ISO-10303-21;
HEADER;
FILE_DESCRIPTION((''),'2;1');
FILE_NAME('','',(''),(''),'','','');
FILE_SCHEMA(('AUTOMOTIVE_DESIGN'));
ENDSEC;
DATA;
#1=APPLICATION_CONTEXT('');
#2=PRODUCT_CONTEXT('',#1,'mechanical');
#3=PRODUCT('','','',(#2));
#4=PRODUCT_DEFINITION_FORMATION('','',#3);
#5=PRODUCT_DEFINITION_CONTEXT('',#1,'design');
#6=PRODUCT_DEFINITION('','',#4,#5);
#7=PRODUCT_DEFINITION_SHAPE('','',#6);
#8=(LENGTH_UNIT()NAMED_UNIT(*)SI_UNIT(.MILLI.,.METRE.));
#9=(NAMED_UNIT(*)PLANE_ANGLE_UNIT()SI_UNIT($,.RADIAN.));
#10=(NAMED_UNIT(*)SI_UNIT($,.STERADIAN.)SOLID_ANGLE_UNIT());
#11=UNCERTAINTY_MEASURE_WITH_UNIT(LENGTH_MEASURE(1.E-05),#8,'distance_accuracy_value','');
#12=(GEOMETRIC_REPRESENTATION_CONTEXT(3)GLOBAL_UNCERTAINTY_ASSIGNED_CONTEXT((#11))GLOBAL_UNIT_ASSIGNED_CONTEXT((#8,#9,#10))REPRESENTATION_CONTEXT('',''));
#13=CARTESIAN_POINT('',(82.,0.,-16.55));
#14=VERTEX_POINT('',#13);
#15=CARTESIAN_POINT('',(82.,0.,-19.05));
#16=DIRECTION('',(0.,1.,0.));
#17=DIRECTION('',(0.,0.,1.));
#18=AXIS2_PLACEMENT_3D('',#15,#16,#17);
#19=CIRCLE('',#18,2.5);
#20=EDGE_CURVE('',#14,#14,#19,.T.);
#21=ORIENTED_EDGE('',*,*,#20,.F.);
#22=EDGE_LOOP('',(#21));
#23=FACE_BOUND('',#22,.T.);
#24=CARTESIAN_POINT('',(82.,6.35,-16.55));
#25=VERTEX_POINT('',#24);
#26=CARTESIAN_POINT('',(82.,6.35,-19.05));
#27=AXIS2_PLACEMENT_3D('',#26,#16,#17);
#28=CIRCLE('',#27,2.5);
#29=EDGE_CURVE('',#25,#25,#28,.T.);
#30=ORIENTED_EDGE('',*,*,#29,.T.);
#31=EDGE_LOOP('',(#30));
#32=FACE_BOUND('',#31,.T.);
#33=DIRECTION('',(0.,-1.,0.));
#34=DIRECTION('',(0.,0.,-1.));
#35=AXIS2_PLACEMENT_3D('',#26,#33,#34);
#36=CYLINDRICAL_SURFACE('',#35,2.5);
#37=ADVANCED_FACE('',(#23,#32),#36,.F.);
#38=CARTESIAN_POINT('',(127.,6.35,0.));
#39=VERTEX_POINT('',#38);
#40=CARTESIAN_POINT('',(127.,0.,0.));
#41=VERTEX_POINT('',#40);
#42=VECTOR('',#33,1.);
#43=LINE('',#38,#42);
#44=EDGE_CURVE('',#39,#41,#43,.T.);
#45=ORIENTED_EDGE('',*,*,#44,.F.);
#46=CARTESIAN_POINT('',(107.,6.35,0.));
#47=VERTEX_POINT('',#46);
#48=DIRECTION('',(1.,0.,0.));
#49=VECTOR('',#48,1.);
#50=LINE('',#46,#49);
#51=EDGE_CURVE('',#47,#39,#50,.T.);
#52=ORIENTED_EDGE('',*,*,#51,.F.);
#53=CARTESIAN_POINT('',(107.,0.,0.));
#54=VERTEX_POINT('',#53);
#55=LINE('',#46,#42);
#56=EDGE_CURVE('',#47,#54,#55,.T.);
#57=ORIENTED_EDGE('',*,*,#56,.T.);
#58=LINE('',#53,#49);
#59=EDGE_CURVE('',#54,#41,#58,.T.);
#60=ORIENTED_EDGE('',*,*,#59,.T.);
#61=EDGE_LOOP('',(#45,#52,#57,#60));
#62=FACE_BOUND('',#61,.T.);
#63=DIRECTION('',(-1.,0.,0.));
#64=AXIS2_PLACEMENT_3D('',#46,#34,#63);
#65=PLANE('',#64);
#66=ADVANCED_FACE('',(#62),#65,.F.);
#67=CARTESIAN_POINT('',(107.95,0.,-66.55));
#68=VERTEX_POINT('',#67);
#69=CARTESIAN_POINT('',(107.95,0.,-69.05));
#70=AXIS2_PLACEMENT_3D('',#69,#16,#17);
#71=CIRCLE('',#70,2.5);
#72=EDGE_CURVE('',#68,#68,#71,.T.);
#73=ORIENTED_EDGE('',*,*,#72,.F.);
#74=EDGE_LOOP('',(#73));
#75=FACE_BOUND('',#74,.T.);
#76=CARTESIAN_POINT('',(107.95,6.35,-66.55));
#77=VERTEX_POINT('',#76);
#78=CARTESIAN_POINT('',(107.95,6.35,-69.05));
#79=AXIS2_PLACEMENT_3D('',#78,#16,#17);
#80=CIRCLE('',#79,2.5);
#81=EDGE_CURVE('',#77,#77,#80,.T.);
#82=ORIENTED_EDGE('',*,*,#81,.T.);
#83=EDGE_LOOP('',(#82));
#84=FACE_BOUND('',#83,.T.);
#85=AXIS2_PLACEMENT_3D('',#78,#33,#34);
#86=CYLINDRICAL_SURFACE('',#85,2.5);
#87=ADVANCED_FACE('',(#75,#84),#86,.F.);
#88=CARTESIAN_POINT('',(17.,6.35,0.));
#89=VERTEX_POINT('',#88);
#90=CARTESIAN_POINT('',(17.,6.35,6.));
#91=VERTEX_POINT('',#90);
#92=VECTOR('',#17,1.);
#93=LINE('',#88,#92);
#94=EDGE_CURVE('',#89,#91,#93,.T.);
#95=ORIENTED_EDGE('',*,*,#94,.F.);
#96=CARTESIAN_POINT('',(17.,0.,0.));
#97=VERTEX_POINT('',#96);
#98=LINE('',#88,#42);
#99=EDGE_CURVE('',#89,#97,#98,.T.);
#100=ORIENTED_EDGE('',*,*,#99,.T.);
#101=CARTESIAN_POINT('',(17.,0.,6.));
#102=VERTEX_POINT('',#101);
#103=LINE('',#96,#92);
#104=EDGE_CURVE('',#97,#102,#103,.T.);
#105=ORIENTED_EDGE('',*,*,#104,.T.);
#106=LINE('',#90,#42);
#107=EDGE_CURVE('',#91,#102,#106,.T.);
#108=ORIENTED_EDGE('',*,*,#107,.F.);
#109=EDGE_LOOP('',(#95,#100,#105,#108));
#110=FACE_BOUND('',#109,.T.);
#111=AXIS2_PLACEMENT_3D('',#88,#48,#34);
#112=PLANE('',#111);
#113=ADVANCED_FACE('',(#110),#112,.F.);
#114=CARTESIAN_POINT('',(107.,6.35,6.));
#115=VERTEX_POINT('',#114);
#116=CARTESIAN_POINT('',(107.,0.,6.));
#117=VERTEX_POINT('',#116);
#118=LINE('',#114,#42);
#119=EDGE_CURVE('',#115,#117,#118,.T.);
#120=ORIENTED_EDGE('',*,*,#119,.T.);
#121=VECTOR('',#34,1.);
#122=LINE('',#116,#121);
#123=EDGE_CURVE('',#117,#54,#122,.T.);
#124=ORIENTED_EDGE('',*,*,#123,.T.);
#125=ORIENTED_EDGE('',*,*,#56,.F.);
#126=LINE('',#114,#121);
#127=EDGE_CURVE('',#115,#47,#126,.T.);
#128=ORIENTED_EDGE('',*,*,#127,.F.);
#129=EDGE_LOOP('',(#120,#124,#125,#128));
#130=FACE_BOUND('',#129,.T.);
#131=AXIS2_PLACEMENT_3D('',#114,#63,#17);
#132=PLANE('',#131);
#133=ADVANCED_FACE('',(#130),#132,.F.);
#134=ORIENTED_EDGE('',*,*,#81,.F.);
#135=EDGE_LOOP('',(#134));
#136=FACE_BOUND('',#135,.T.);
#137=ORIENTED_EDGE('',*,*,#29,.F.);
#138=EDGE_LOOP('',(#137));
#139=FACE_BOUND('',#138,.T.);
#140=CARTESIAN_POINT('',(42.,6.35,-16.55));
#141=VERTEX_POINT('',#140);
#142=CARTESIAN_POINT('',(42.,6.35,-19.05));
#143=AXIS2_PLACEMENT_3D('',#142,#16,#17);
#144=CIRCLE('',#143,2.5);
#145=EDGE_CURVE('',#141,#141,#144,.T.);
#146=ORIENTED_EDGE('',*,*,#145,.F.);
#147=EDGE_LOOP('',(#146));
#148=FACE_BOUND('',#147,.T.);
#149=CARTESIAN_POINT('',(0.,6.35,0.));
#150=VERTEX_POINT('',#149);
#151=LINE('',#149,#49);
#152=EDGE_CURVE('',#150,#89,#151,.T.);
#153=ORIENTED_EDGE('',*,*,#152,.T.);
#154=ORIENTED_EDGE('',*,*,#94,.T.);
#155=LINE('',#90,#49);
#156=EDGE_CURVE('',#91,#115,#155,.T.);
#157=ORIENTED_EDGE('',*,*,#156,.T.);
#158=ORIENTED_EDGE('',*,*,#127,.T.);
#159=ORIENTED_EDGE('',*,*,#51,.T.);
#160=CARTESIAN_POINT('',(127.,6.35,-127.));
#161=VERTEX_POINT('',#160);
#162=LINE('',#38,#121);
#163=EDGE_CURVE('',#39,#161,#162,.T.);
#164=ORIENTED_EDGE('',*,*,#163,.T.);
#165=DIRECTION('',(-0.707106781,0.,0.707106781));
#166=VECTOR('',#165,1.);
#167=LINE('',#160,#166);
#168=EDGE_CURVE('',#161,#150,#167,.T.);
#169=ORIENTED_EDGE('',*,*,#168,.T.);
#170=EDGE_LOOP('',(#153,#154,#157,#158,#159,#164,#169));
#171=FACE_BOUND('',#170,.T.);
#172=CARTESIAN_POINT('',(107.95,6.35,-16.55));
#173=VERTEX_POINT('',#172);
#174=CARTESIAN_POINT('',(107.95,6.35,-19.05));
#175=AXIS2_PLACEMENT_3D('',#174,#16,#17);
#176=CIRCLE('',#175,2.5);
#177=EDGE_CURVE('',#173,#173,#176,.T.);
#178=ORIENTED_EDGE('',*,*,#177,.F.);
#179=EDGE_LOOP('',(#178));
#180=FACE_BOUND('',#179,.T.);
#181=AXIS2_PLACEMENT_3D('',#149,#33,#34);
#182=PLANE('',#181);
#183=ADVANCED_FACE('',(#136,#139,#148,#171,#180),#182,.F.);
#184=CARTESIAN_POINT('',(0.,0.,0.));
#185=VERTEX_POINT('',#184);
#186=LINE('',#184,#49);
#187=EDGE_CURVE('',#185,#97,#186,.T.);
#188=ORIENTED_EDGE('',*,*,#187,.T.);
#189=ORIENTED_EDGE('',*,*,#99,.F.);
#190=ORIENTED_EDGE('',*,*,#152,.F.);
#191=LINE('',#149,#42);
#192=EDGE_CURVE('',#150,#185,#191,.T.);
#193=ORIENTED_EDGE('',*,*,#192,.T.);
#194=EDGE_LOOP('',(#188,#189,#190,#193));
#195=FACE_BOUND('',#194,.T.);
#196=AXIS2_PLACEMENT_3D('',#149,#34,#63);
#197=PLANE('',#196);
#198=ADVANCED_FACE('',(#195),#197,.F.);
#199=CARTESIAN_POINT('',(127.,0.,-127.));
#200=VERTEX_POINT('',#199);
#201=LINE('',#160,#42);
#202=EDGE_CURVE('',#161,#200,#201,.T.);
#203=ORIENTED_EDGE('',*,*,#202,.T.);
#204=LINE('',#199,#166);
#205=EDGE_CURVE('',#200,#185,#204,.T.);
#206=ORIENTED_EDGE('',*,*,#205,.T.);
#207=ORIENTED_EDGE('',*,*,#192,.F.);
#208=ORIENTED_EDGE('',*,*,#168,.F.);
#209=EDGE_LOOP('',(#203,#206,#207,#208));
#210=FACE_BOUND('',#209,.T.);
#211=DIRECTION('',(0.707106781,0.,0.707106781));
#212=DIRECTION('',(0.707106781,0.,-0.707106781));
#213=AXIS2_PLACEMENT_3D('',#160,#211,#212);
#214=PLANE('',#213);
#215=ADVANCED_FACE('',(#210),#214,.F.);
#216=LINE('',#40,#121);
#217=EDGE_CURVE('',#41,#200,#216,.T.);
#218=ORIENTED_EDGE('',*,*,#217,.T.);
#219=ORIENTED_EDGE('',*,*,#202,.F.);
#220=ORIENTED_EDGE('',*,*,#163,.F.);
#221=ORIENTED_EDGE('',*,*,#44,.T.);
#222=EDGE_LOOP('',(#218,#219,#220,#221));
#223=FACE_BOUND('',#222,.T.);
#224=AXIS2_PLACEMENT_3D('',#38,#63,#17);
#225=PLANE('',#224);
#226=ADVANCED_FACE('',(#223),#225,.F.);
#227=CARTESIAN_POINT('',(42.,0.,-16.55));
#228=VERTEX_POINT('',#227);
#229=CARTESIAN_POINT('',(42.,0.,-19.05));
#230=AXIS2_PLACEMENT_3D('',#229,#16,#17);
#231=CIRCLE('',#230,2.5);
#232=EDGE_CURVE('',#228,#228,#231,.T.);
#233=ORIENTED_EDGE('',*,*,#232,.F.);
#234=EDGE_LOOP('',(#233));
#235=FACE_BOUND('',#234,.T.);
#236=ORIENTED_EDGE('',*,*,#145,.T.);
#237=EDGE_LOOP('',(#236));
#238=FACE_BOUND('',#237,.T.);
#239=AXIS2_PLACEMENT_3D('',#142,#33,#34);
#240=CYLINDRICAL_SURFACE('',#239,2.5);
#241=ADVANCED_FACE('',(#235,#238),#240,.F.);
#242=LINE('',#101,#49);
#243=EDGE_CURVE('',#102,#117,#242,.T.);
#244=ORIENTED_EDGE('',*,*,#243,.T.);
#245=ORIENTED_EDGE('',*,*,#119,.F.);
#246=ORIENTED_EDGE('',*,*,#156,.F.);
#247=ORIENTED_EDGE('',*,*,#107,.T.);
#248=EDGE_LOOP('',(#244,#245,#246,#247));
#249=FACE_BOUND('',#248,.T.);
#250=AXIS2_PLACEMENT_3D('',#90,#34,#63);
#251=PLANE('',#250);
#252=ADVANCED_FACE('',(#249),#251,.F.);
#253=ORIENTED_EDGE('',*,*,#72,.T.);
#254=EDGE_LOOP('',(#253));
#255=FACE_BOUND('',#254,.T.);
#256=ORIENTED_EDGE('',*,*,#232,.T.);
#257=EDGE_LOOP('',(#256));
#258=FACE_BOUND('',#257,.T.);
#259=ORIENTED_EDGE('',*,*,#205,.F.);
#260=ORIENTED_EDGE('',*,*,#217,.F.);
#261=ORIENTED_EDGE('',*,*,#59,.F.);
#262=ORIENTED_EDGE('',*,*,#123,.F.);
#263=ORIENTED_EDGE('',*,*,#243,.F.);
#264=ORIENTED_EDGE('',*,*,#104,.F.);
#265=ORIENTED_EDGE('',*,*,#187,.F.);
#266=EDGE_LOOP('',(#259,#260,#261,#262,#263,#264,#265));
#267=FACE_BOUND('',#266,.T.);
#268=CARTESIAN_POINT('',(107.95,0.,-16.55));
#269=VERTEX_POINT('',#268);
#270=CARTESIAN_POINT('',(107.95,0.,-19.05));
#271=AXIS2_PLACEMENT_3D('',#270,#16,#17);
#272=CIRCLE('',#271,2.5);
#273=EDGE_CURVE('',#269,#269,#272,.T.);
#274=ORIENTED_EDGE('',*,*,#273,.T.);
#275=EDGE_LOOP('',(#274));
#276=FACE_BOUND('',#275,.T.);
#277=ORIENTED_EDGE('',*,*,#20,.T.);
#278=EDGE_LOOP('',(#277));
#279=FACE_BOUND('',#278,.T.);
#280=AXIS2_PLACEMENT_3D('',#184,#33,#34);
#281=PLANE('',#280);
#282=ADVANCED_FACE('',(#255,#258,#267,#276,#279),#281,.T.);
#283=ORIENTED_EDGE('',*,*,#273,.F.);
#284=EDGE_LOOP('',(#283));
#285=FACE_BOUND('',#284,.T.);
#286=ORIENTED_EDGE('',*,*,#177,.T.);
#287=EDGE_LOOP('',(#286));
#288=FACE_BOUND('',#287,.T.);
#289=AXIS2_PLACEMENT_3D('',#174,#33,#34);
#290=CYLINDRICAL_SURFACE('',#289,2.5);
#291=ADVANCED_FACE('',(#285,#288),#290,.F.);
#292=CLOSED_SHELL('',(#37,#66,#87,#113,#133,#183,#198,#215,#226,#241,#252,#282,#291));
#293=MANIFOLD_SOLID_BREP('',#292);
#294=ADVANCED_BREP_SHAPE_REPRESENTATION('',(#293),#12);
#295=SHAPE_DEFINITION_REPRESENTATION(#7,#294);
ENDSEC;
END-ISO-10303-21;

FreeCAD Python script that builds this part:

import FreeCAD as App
import Part
import Sketcher

V = App.Vector
Q = App.Units.Quantity

doc = App.newDocument("Part")
body = doc.addObject("PartDesign::Body", "Body")

sketch1 = body.newObject("Sketcher::SketchObject", "Sketch")
sketch1.AttachmentSupport = (doc.getObject("XZ_Plane"), [""])
sketch1.MapMode = "FlatFace"
sketch1.addGeometry([
    Part.LineSegment(V(17, 6, 0), V(107, 6, 0)),
    Part.LineSegment(V(107, 6, 0), V(107, 0, 0)),
    Part.LineSegment(V(107, 0, 0), V(127, 0, 0)),
    Part.LineSegment(V(127, 0, 0), V(127, -127, 0)),
    Part.LineSegment(V(127, -127, 0), V(0, 0, 0)),
    Part.LineSegment(V(0, 0, 0), V(17, 0, 0)),
    Part.LineSegment(V(17, 0, 0), V(17, 6, 0)),
    Part.Circle(V(42, -19.1, 0), V(0, 0, 1), 2.5),
    Part.Circle(V(82, -19.1, 0), V(0, 0, 1), 2.5),
    Part.Circle(V(108, -19.1, 0), V(0, 0, 1), 2.5),
    Part.Circle(V(108, -69, 0), V(0, 0, 1), 2.5),
], False)
sketch1.addConstraint([
    Sketcher.Constraint("Coincident", 0, 2, 1, 1),
    Sketcher.Constraint("Coincident", 1, 2, 2, 1),
    Sketcher.Constraint("Coincident", 2, 2, 3, 1),
    Sketcher.Constraint("Coincident", 3, 2, 4, 1),
    Sketcher.Constraint("Coincident", 4, 2, 5, 1),
    Sketcher.Constraint("Coincident", 5, 2, 6, 1),
    Sketcher.Constraint("Coincident", 6, 2, 0, 1),
    Sketcher.Constraint("Horizontal", 0),
    Sketcher.Constraint("Vertical", 1),
    Sketcher.Constraint("Horizontal", 2),
    Sketcher.Constraint("Vertical", 3),
    Sketcher.Constraint("Horizontal", 5),
    Sketcher.Constraint("Vertical", 6),
    Sketcher.Constraint("Coincident", 4, 2, -1, 1),
    Sketcher.Constraint("Equal", 7, 8),
    Sketcher.Constraint("Equal", 8, 9),
    Sketcher.Constraint("Equal", 9, 10),
    Sketcher.Constraint("PointOnObject", 1, 2, -1),
    Sketcher.Constraint("Horizontal", 7, 3, 8, 3),
    Sketcher.Constraint("Horizontal", 8, 3, 9, 3),
    Sketcher.Constraint("Vertical", 9, 3, 10, 3),
    Sketcher.Constraint("Diameter", 7, Q("5 mm")),
    Sketcher.Constraint("DistanceX", 0, 1, 0, 2, Q("90 mm")),
    Sketcher.Constraint("DistanceX", 2, 1, 2, 2, Q("20 mm")),
    Sketcher.Constraint("DistanceX", 5, 1, 5, 2, Q("17 mm")),
    Sketcher.Constraint("DistanceY", 1, 2, 1, 1, Q("6 mm")),
    Sketcher.Constraint("DistanceY", 3, 2, 3, 1, Q("127 mm")),
    Sketcher.Constraint("DistanceX", -1, 1, 7, 3, Q("42 mm")),
    Sketcher.Constraint("DistanceX", -1, 1, 8, 3, Q("82 mm")),
    Sketcher.Constraint("DistanceY", 10, 3, 9, 3, Q("50 mm")),
    Sketcher.Constraint("DistanceY", 7, 3, -1, 1, Q("19.05 mm")),
    Sketcher.Constraint("DistanceX", -1, 1, 9, 3, Q("107.95 mm")),
])
pad1 = body.newObject("PartDesign::Pad", "Pad")
pad1.Profile = sketch1
pad1.Length = 6.35
pad1.Reversed = True

doc.recompute()
